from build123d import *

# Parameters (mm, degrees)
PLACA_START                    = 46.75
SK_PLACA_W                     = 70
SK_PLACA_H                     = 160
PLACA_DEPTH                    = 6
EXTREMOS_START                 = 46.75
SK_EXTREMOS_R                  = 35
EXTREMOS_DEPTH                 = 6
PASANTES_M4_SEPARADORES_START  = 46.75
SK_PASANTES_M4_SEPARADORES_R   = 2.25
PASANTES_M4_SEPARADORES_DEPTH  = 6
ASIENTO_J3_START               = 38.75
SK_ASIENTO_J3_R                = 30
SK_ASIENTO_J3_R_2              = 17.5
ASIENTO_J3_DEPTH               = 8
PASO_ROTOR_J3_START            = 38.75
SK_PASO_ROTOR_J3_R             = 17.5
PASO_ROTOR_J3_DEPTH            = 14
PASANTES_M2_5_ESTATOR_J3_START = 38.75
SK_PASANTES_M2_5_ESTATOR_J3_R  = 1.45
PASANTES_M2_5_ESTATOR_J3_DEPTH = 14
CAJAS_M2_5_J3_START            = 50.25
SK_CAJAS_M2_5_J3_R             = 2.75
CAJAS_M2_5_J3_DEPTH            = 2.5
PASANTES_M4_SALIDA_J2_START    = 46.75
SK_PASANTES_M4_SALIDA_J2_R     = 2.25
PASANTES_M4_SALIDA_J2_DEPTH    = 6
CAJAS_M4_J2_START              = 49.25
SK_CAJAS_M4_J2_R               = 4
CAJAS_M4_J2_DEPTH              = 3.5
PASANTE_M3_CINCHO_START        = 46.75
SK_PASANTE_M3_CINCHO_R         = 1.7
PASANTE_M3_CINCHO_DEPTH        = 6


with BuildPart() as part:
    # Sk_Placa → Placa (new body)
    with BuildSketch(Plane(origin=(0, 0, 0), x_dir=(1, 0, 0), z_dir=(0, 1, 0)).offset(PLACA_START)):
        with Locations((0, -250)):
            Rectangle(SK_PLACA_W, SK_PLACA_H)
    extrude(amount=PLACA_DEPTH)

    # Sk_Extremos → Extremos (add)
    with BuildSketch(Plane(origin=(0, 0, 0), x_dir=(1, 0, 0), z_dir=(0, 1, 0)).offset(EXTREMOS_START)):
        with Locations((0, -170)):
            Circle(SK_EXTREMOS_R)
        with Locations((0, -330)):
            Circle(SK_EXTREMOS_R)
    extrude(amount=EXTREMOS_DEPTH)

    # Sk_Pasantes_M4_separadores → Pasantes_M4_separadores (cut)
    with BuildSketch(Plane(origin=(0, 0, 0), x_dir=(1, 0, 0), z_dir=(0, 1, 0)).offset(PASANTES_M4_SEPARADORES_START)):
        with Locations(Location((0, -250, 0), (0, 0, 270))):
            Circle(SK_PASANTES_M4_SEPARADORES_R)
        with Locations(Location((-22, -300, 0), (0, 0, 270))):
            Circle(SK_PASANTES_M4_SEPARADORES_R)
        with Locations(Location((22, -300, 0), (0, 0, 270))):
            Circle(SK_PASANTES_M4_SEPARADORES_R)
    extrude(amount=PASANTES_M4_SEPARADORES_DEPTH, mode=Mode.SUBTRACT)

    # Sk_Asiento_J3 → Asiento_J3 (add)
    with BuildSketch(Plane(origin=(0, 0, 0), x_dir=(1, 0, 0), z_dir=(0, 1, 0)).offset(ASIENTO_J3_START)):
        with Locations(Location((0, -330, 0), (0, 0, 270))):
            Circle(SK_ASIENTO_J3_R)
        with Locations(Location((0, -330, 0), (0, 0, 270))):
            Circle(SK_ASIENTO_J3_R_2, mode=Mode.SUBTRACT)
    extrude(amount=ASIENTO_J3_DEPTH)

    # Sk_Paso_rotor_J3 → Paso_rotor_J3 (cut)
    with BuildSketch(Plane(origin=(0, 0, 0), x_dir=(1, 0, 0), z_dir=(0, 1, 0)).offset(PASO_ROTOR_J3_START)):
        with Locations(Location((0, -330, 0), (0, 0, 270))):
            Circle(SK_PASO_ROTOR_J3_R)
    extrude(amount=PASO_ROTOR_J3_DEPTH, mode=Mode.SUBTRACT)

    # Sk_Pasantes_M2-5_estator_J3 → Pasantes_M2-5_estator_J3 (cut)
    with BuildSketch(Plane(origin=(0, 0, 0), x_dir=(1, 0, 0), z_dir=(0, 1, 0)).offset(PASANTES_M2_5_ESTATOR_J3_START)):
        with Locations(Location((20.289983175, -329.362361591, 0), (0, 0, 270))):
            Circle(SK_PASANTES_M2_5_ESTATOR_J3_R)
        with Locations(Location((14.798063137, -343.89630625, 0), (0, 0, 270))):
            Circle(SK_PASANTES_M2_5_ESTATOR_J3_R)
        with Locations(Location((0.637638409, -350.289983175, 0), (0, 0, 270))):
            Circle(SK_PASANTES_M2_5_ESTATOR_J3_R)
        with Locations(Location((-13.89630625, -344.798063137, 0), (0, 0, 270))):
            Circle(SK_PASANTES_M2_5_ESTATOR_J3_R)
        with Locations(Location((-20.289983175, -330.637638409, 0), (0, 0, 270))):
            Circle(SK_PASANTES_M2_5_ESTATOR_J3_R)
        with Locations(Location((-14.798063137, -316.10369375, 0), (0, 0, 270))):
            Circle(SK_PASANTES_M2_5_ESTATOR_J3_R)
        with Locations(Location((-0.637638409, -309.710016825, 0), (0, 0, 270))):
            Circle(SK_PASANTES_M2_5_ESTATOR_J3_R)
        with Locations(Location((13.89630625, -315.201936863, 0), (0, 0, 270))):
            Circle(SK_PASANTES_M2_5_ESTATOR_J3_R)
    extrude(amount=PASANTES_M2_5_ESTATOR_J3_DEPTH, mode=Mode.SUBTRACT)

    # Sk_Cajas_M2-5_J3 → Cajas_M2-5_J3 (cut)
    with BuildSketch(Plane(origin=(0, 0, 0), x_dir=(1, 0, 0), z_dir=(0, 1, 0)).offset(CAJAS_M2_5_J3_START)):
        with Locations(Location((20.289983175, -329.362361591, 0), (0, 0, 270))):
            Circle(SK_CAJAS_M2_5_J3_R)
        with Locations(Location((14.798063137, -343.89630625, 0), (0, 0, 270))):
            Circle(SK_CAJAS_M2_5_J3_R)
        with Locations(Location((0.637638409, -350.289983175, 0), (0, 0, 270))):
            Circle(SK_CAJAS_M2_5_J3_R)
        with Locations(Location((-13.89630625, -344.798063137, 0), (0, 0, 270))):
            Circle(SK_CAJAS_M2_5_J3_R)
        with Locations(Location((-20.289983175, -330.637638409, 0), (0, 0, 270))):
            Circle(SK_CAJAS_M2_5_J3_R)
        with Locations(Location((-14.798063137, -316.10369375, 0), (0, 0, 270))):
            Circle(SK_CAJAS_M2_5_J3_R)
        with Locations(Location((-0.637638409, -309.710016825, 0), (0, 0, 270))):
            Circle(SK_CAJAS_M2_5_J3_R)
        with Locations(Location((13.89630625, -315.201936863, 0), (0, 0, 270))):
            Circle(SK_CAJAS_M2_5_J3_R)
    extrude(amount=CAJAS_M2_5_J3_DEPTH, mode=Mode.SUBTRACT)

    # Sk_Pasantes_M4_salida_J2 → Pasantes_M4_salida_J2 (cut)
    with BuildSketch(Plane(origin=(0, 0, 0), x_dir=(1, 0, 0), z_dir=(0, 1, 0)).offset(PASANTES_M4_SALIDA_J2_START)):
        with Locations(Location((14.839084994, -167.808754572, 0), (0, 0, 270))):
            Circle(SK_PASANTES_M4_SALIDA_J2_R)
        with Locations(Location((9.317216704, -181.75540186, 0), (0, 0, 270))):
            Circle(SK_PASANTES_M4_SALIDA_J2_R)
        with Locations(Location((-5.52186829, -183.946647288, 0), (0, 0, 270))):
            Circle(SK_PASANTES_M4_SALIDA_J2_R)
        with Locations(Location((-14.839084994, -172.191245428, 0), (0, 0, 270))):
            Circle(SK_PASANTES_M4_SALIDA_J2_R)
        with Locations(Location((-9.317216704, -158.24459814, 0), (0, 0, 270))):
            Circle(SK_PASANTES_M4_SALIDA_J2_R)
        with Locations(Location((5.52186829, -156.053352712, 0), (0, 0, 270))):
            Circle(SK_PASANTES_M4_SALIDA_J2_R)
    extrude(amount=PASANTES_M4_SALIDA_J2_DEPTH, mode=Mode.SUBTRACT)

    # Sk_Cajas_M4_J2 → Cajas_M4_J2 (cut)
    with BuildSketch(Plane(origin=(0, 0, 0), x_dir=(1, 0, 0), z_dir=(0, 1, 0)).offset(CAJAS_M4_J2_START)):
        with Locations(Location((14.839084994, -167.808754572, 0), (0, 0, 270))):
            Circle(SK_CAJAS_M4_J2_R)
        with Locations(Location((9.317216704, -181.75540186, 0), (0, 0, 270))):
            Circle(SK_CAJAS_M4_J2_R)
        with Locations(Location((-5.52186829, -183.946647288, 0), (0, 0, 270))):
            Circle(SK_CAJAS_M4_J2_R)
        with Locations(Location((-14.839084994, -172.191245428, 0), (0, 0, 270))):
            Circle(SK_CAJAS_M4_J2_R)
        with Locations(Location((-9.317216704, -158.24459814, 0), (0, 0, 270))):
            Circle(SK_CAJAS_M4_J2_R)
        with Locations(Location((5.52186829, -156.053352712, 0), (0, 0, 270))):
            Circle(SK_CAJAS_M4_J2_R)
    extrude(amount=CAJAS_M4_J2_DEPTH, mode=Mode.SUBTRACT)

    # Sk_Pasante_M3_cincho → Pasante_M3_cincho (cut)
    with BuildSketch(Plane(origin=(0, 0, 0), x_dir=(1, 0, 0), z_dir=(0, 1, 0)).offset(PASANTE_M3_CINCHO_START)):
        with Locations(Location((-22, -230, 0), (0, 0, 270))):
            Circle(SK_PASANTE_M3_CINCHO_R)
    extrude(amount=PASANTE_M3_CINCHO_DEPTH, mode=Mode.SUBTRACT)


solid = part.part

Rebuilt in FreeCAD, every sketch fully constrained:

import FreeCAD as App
import Part
import Sketcher
from FreeCAD import Vector


def add_polygon(sketch, points):
    """Adds a closed chain of lines whose ends are joined by coincident constraints."""
    first, n = sketch.GeometryCount, len(points)
    for a, b in zip(points, points[1:] + points[:1]):
        sketch.addGeometry(Part.LineSegment(App.Vector(*a, 0), App.Vector(*b, 0)), False)
    for i in range(n):
        sketch.addConstraint(Sketcher.Constraint("Coincident", first + i, 2, first + (i + 1) % n, 1))

doc = App.newDocument("Part")
params = doc.addObject("Spreadsheet::Sheet", "Params")
for row, (alias, value) in enumerate([
    ("sketch1_width", "70 mm"),
    ("sketch1_height", "160 mm"),
    ("pad1_length", "6 mm"),
    ("sketch2_diameter", "70 mm"),
    ("pad2_length", "6 mm"),
    ("sketch3_diameter", "4.5 mm"),
    ("pocket1_length", "6 mm"),
    ("sketch4_diameter", "60 mm"),
    ("sketch4_diameter2", "35 mm"),
    ("pad3_length", "8 mm"),
    ("sketch5_diameter", "35 mm"),
    ("pocket2_length", "14 mm"),
    ("sketch6_diameter", "2.9 mm"),
    ("pocket3_length", "14 mm"),
    ("sketch7_diameter", "5.5 mm"),
    ("pocket4_length", "2.5 mm"),
    ("sketch8_diameter", "4.5 mm"),
    ("pocket5_length", "6 mm"),
    ("sketch9_diameter", "8 mm"),
    ("pocket6_length", "3.5 mm"),
    ("sketch10_diameter", "3.4 mm"),
    ("pocket7_length", "6 mm"),
], start=1):
    params.set(f"A{row}", alias)
    params.set(f"B{row}", "=" + value)
    params.setAlias(f"B{row}", alias)

body = doc.addObject("PartDesign::Body", "Body")

# Sketch on XZ plane
sketch1 = doc.addObject("Sketcher::SketchObject", "Sketch")
body.addObject(sketch1)
sketch1.AttachmentSupport = (doc.XZ_Plane, [""])
sketch1.MapMode = "FlatFace"
sketch1.AttachmentOffset = App.Placement(Vector(0, 0, -46.75), App.Rotation())
add_polygon(sketch1, [(-35, 170), (-35, 330), (35, 330), (35, 170)])  # lines 0-3
sketch1.addConstraint([
    Sketcher.Constraint("Vertical", 0),
    Sketcher.Constraint("Horizontal", 1),
    Sketcher.Constraint("Vertical", 2),
    Sketcher.Constraint("Horizontal", 3),
    Sketcher.Constraint("DistanceX", 1, 1, 1, 2, 70.0),
    Sketcher.Constraint("DistanceY", 0, 1, 0, 2, 160.0),
    Sketcher.Constraint("DistanceX", 0, 2, -1, 1, 35.0),
    Sketcher.Constraint("DistanceY", -1, 1, 0, 2, 330.0),
])
sketch1.setExpression("Constraints[8]", "Params.sketch1_width")
sketch1.setExpression("Constraints[9]", "Params.sketch1_height")
pad1 = doc.addObject("PartDesign::Pad", "Pad")
body.addObject(pad1)
pad1.Profile = sketch1
pad1.setExpression("Length", "Params.pad1_length")
pad1.Reversed = True

# Sketch on XZ plane
sketch2 = doc.addObject("Sketcher::SketchObject", "Sketch001")
body.addObject(sketch2)
sketch2.AttachmentSupport = (doc.XZ_Plane, [""])
sketch2.MapMode = "FlatFace"
sketch2.AttachmentOffset = App.Placement(Vector(0, 0, -46.75), App.Rotation())
sketch2.addGeometry([
    Part.Circle(Vector(0, 170, 0), Vector(0, 0, 1), 35),
    Part.Circle(Vector(0, 330, 0), Vector(0, 0, 1), 35),
], False)
sketch2.addConstraint([
    Sketcher.Constraint("Equal", 0, 1),
    Sketcher.Constraint("PointOnObject", 0, 3, -2),
    Sketcher.Constraint("PointOnObject", 1, 3, -2),
    Sketcher.Constraint("Diameter", 0, 70.0),
    Sketcher.Constraint("DistanceY", -1, 1, 0, 3, 170.0),
    Sketcher.Constraint("DistanceY", -1, 1, 1, 3, 330.0),
])
sketch2.setExpression("Constraints[3]", "Params.sketch2_diameter")
pad2 = doc.addObject("PartDesign::Pad", "Pad001")
body.addObject(pad2)
pad2.Profile = sketch2
pad2.setExpression("Length", "Params.pad2_length")
pad2.Reversed = True

# Sketch on XZ plane
sketch3 = doc.addObject("Sketcher::SketchObject", "Sketch002")
body.addObject(sketch3)
sketch3.AttachmentSupport = (doc.XZ_Plane, [""])
sketch3.MapMode = "FlatFace"
sketch3.AttachmentOffset = App.Placement(Vector(0, 0, -46.75), App.Rotation())
sketch3.addGeometry([
    Part.Circle(Vector(0, 250, 0), Vector(0, 0, 1), 2.25),
    Part.Circle(Vector(-22, 300, 0), Vector(0, 0, 1), 2.25),
    Part.Circle(Vector(22, 300, 0), Vector(0, 0, 1), 2.25),
], False)
sketch3.addConstraint([
    Sketcher.Constraint("Equal", 0, 1),
    Sketcher.Constraint("Equal", 1, 2),
    Sketcher.Constraint("Symmetric", 1, 3, 2, 3, -2),
    Sketcher.Constraint("PointOnObject", 0, 3, -2),
    Sketcher.Constraint("Diameter", 0, 4.5),
    Sketcher.Constraint("DistanceY", -1, 1, 0, 3, 250.0),
    Sketcher.Constraint("DistanceX", 1, 3, -1, 1, 22.0),
    Sketcher.Constraint("DistanceY", -1, 1, 1, 3, 300.0),
])
sketch3.setExpression("Constraints[4]", "Params.sketch3_diameter")
pocket1 = doc.addObject("PartDesign::Pocket", "Pocket")
body.addObject(pocket1)
pocket1.Profile = sketch3
pocket1.setExpression("Length", "Params.pocket1_length")

# Sketch on XZ plane
sketch4 = doc.addObject("Sketcher::SketchObject", "Sketch003")
body.addObject(sketch4)
sketch4.AttachmentSupport = (doc.XZ_Plane, [""])
sketch4.MapMode = "FlatFace"
sketch4.AttachmentOffset = App.Placement(Vector(0, 0, -38.75), App.Rotation())
sketch4.addGeometry([
    Part.Circle(Vector(0, 330, 0), Vector(0, 0, 1), 30),
    Part.Circle(Vector(0, 330, 0), Vector(0, 0, 1), 17.5),
], False)
sketch4.addConstraint([
    Sketcher.Constraint("Coincident", 1, 3, 0, 3),
    Sketcher.Constraint("PointOnObject", 0, 3, -2),
    Sketcher.Constraint("Diameter", 0, 60.0),
    Sketcher.Constraint("Diameter", 1, 35.0),
    Sketcher.Constraint("DistanceY", -1, 1, 0, 3, 330.0),
])
sketch4.setExpression("Constraints[2]", "Params.sketch4_diameter")
sketch4.setExpression("Constraints[3]", "Params.sketch4_diameter2")
pad3 = doc.addObject("PartDesign::Pad", "Pad002")
body.addObject(pad3)
pad3.Profile = sketch4
pad3.setExpression("Length", "Params.pad3_length")
pad3.Reversed = True

# Sketch on XZ plane
sketch5 = doc.addObject("Sketcher::SketchObject", "Sketch004")
body.addObject(sketch5)
sketch5.AttachmentSupport = (doc.XZ_Plane, [""])
sketch5.MapMode = "FlatFace"
sketch5.AttachmentOffset = App.Placement(Vector(0, 0, -38.75), App.Rotation())
sketch5.addGeometry(Part.Circle(Vector(0, 330, 0), Vector(0, 0, 1), 17.5), False)
sketch5.addConstraint([
    Sketcher.Constraint("PointOnObject", 0, 3, -2),
    Sketcher.Constraint("Diameter", 0, 35.0),
    Sketcher.Constraint("DistanceY", -1, 1, 0, 3, 330.0),
])
sketch5.setExpression("Constraints[1]", "Params.sketch5_diameter")
pocket2 = doc.addObject("PartDesign::Pocket", "Pocket001")
body.addObject(pocket2)
pocket2.Profile = sketch5
pocket2.setExpression("Length", "Params.pocket2_length")

# Sketch on XZ plane
sketch6 = doc.addObject("Sketcher::SketchObject", "Sketch005")
body.addObject(sketch6)
sketch6.AttachmentSupport = (doc.XZ_Plane, [""])
sketch6.MapMode = "FlatFace"
sketch6.AttachmentOffset = App.Placement(Vector(0, 0, -38.75), App.Rotation())
sketch6.addGeometry([
    Part.Circle(Vector(20.289983, 329.362362, 0), Vector(0, 0, 1), 1.45),  # 0
    Part.Circle(Vector(14.798063, 343.896306, 0), Vector(0, 0, 1), 1.45),  # 1
    Part.Circle(Vector(0.637638, 350.289983, 0), Vector(0, 0, 1), 1.45),  # 2
    Part.Circle(Vector(-13.896306, 344.798063, 0), Vector(0, 0, 1), 1.45),  # 3
    Part.Circle(Vector(-20.289983, 330.637638, 0), Vector(0, 0, 1), 1.45),  # 4
    Part.Circle(Vector(-14.798063, 316.103694, 0), Vector(0, 0, 1), 1.45),  # 5
    Part.Circle(Vector(-0.637638, 309.710017, 0), Vector(0, 0, 1), 1.45),  # 6
    Part.Circle(Vector(13.896306, 315.201937, 0), Vector(0, 0, 1), 1.45),  # 7
], False)
sketch6.addConstraint([
    Sketcher.Constraint("Equal", 0, 1),
    Sketcher.Constraint("Equal", 1, 2),
    Sketcher.Constraint("Equal", 2, 3),
    Sketcher.Constraint("Equal", 3, 4),
    Sketcher.Constraint("Equal", 4, 5),
    Sketcher.Constraint("Equal", 5, 6),
    Sketcher.Constraint("Equal", 6, 7),
    Sketcher.Constraint("Diameter", 0, 2.9),
    Sketcher.Constraint("DistanceY", 0, 3, 3, 3, 15.435702),
    Sketcher.Constraint("DistanceX", 5, 3, 2, 3, 15.435702),
    Sketcher.Constraint("DistanceX", 6, 3, 1, 3, 15.435702),
    Sketcher.Constraint("DistanceY", 7, 3, 4, 3, 15.435702),
    Sketcher.Constraint("DistanceY", -1, 1, 0, 3, 329.362362),
    Sketcher.Constraint("DistanceX", -1, 1, 2, 3, 0.637638),
    Sketcher.Constraint("DistanceY", -1, 1, 4, 3, 330.637638),
    Sketcher.Constraint("DistanceX", 6, 3, -1, 1, 0.637638),
    Sketcher.Constraint("DistanceX", 1, 3, 0, 3, 5.49192),
    Sketcher.Constraint("DistanceY", 0, 3, 2, 3, 20.927622),
    Sketcher.Constraint("DistanceX", 3, 3, 1, 3, 28.694369),
    Sketcher.Constraint("DistanceX", 4, 3, 2, 3, 20.927622),
    Sketcher.Constraint("DistanceY", 5, 3, 3, 3, 28.694369),
    Sketcher.Constraint("DistanceY", 6, 3, 4, 3, 20.927622),
    Sketcher.Constraint("DistanceY", 6, 3, 1, 3, 34.186289),
    Sketcher.Constraint("DistanceX", 5, 3, 7, 3, 28.694369),
])
sketch6.setExpression("Constraints[7]", "Params.sketch6_diameter")
pocket3 = doc.addObject("PartDesign::Pocket", "Pocket002")
body.addObject(pocket3)
pocket3.Profile = sketch6
pocket3.setExpression("Length", "Params.pocket3_length")

# Sketch on XZ plane
sketch7 = doc.addObject("Sketcher::SketchObject", "Sketch006")
body.addObject(sketch7)
sketch7.AttachmentSupport = (doc.XZ_Plane, [""])
sketch7.MapMode = "FlatFace"
sketch7.AttachmentOffset = App.Placement(Vector(0, 0, -50.25), App.Rotation())
sketch7.addGeometry([
    Part.Circle(Vector(20.289983, 329.362362, 0), Vector(0, 0, 1), 2.75),  # 0
    Part.Circle(Vector(14.798063, 343.896306, 0), Vector(0, 0, 1), 2.75),  # 1
    Part.Circle(Vector(0.637638, 350.289983, 0), Vector(0, 0, 1), 2.75),  # 2
    Part.Circle(Vector(-13.896306, 344.798063, 0), Vector(0, 0, 1), 2.75),  # 3
    Part.Circle(Vector(-20.289983, 330.637638, 0), Vector(0, 0, 1), 2.75),  # 4
    Part.Circle(Vector(-14.798063, 316.103694, 0), Vector(0, 0, 1), 2.75),  # 5
    Part.Circle(Vector(-0.637638, 309.710017, 0), Vector(0, 0, 1), 2.75),  # 6
    Part.Circle(Vector(13.896306, 315.201937, 0), Vector(0, 0, 1), 2.75),  # 7
], False)
sketch7.addConstraint([
    Sketcher.Constraint("Equal", 0, 1),
    Sketcher.Constraint("Equal", 1, 2),
    Sketcher.Constraint("Equal", 2, 3),
    Sketcher.Constraint("Equal", 3, 4),
    Sketcher.Constraint("Equal", 4, 5),
    Sketcher.Constraint("Equal", 5, 6),
    Sketcher.Constraint("Equal", 6, 7),
    Sketcher.Constraint("Diameter", 0, 5.5),
    Sketcher.Constraint("DistanceY", 0, 3, 3, 3, 15.435702),
    Sketcher.Constraint("DistanceX", 5, 3, 2, 3, 15.435702),
    Sketcher.Constraint("DistanceX", 6, 3, 1, 3, 15.435702),
    Sketcher.Constraint("DistanceY", 7, 3, 4, 3, 15.435702),
    Sketcher.Constraint("DistanceY", -1, 1, 0, 3, 329.362362),
    Sketcher.Constraint("DistanceX", -1, 1, 2, 3, 0.637638),
    Sketcher.Constraint("DistanceY", -1, 1, 4, 3, 330.637638),
    Sketcher.Constraint("DistanceX", 6, 3, -1, 1, 0.637638),
    Sketcher.Constraint("DistanceX", 1, 3, 0, 3, 5.49192),
    Sketcher.Constraint("DistanceY", 0, 3, 2, 3, 20.927622),
    Sketcher.Constraint("DistanceX", 3, 3, 1, 3, 28.694369),
    Sketcher.Constraint("DistanceX", 4, 3, 2, 3, 20.927622),
    Sketcher.Constraint("DistanceY", 5, 3, 3, 3, 28.694369),
    Sketcher.Constraint("DistanceY", 6, 3, 4, 3, 20.927622),
    Sketcher.Constraint("DistanceY", 6, 3, 1, 3, 34.186289),
    Sketcher.Constraint("DistanceX", 5, 3, 7, 3, 28.694369),
])
sketch7.setExpression("Constraints[7]", "Params.sketch7_diameter")
pocket4 = doc.addObject("PartDesign::Pocket", "Pocket003")
body.addObject(pocket4)
pocket4.Profile = sketch7
pocket4.setExpression("Length", "Params.pocket4_length")

# Sketch on XZ plane
sketch8 = doc.addObject("Sketcher::SketchObject", "Sketch007")
body.addObject(sketch8)
sketch8.AttachmentSupport = (doc.XZ_Plane, [""])
sketch8.MapMode = "FlatFace"
sketch8.AttachmentOffset = App.Placement(Vector(0, 0, -46.75), App.Rotation())
sketch8.addGeometry([
    Part.Circle(Vector(14.839085, 167.808755, 0), Vector(0, 0, 1), 2.25),  # 0
    Part.Circle(Vector(9.317217, 181.755402, 0), Vector(0, 0, 1), 2.25),  # 1
    Part.Circle(Vector(-5.521868, 183.946647, 0), Vector(0, 0, 1), 2.25),  # 2
    Part.Circle(Vector(-14.839085, 172.191245, 0), Vector(0, 0, 1), 2.25),  # 3
    Part.Circle(Vector(-9.317217, 158.244598, 0), Vector(0, 0, 1), 2.25),  # 4
    Part.Circle(Vector(5.521868, 156.053353, 0), Vector(0, 0, 1), 2.25),  # 5
], False)
sketch8.addConstraint([
    Sketcher.Constraint("Equal", 0, 1),
    Sketcher.Constraint("Equal", 1, 2),
    Sketcher.Constraint("Equal", 2, 3),
    Sketcher.Constraint("Equal", 3, 4),
    Sketcher.Constraint("Equal", 4, 5),
    Sketcher.Constraint("Diameter", 0, 4.5),
    Sketcher.Constraint("DistanceY", -1, 1, 1, 3, 181.755402),
    Sketcher.Constraint("DistanceY", -1, 1, 4, 3, 158.244598),
    Sketcher.Constraint("DistanceY", 3, 3, 2, 3, 11.755402),
    Sketcher.Constraint("DistanceX", 3, 3, 1, 3, 24.156302),
    Sketcher.Constraint("DistanceX", 4, 3, 0, 3, 24.156302),
    Sketcher.Constraint("DistanceY", 5, 3, 0, 3, 11.755402),
    Sketcher.Constraint("DistanceX", 2, 3, -1, 1, 5.521868),
    Sketcher.Constraint("DistanceX", -1, 1, 5, 3, 5.521868),
    Sketcher.Constraint("DistanceX", 1, 3, 0, 3, 5.521868),
    Sketcher.Constraint("DistanceY", 0, 3, 3, 3, 4.382491),
    Sketcher.Constraint("DistanceX", 4, 3, 2, 3, 3.795348),
    Sketcher.Constraint("DistanceY", 4, 3, 2, 3, 25.702049),
])
sketch8.setExpression("Constraints[5]", "Params.sketch8_diameter")
pocket5 = doc.addObject("PartDesign::Pocket", "Pocket004")
body.addObject(pocket5)
pocket5.Profile = sketch8
pocket5.setExpression("Length", "Params.pocket5_length")

# Sketch on XZ plane
sketch9 = doc.addObject("Sketcher::SketchObject", "Sketch008")
body.addObject(sketch9)
sketch9.AttachmentSupport = (doc.XZ_Plane, [""])
sketch9.MapMode = "FlatFace"
sketch9.AttachmentOffset = App.Placement(Vector(0, 0, -49.25), App.Rotation())
sketch9.addGeometry([
    Part.Circle(Vector(14.839085, 167.808755, 0), Vector(0, 0, 1), 4),  # 0
    Part.Circle(Vector(9.317217, 181.755402, 0), Vector(0, 0, 1), 4),  # 1
    Part.Circle(Vector(-5.521868, 183.946647, 0), Vector(0, 0, 1), 4),  # 2
    Part.Circle(Vector(-14.839085, 172.191245, 0), Vector(0, 0, 1), 4),  # 3
    Part.Circle(Vector(-9.317217, 158.244598, 0), Vector(0, 0, 1), 4),  # 4
    Part.Circle(Vector(5.521868, 156.053353, 0), Vector(0, 0, 1), 4),  # 5
], False)
sketch9.addConstraint([
    Sketcher.Constraint("Equal", 0, 1),
    Sketcher.Constraint("Equal", 1, 2),
    Sketcher.Constraint("Equal", 2, 3),
    Sketcher.Constraint("Equal", 3, 4),
    Sketcher.Constraint("Equal", 4, 5),
    Sketcher.Constraint("Diameter", 0, 8.0),
    Sketcher.Constraint("DistanceY", -1, 1, 1, 3, 181.755402),
    Sketcher.Constraint("DistanceY", -1, 1, 4, 3, 158.244598),
    Sketcher.Constraint("DistanceY", 3, 3, 2, 3, 11.755402),
    Sketcher.Constraint("DistanceX", 3, 3, 1, 3, 24.156302),
    Sketcher.Constraint("DistanceX", 4, 3, 0, 3, 24.156302),
    Sketcher.Constraint("DistanceY", 5, 3, 0, 3, 11.755402),
    Sketcher.Constraint("DistanceX", 2, 3, -1, 1, 5.521868),
    Sketcher.Constraint("DistanceX", -1, 1, 5, 3, 5.521868),
    Sketcher.Constraint("DistanceX", 1, 3, 0, 3, 5.521868),
    Sketcher.Constraint("DistanceY", 0, 3, 3, 3, 4.382491),
    Sketcher.Constraint("DistanceX", 4, 3, 2, 3, 3.795348),
    Sketcher.Constraint("DistanceY", 4, 3, 2, 3, 25.702049),
])
sketch9.setExpression("Constraints[5]", "Params.sketch9_diameter")
pocket6 = doc.addObject("PartDesign::Pocket", "Pocket005")
body.addObject(pocket6)
pocket6.Profile = sketch9
pocket6.setExpression("Length", "Params.pocket6_length")

# Sketch on XZ plane
sketch10 = doc.addObject("Sketcher::SketchObject", "Sketch009")
body.addObject(sketch10)
sketch10.AttachmentSupport = (doc.XZ_Plane, [""])
sketch10.MapMode = "FlatFace"
sketch10.AttachmentOffset = App.Placement(Vector(0, 0, -46.75), App.Rotation())
sketch10.addGeometry(Part.Circle(Vector(-22, 230, 0), Vector(0, 0, 1), 1.7), False)
sketch10.addConstraint([
    Sketcher.Constraint("Diameter", 0, 3.4),
    Sketcher.Constraint("DistanceX", 0, 3, -1, 1, 22.0),
    Sketcher.Constraint("DistanceY", -1, 1, 0, 3, 230.0),
])
sketch10.setExpression("Constraints[0]", "Params.sketch10_diameter")
pocket7 = doc.addObject("PartDesign::Pocket", "Pocket006")
body.addObject(pocket7)
pocket7.Profile = sketch10
pocket7.setExpression("Length", "Params.pocket7_length")

doc.recompute()
